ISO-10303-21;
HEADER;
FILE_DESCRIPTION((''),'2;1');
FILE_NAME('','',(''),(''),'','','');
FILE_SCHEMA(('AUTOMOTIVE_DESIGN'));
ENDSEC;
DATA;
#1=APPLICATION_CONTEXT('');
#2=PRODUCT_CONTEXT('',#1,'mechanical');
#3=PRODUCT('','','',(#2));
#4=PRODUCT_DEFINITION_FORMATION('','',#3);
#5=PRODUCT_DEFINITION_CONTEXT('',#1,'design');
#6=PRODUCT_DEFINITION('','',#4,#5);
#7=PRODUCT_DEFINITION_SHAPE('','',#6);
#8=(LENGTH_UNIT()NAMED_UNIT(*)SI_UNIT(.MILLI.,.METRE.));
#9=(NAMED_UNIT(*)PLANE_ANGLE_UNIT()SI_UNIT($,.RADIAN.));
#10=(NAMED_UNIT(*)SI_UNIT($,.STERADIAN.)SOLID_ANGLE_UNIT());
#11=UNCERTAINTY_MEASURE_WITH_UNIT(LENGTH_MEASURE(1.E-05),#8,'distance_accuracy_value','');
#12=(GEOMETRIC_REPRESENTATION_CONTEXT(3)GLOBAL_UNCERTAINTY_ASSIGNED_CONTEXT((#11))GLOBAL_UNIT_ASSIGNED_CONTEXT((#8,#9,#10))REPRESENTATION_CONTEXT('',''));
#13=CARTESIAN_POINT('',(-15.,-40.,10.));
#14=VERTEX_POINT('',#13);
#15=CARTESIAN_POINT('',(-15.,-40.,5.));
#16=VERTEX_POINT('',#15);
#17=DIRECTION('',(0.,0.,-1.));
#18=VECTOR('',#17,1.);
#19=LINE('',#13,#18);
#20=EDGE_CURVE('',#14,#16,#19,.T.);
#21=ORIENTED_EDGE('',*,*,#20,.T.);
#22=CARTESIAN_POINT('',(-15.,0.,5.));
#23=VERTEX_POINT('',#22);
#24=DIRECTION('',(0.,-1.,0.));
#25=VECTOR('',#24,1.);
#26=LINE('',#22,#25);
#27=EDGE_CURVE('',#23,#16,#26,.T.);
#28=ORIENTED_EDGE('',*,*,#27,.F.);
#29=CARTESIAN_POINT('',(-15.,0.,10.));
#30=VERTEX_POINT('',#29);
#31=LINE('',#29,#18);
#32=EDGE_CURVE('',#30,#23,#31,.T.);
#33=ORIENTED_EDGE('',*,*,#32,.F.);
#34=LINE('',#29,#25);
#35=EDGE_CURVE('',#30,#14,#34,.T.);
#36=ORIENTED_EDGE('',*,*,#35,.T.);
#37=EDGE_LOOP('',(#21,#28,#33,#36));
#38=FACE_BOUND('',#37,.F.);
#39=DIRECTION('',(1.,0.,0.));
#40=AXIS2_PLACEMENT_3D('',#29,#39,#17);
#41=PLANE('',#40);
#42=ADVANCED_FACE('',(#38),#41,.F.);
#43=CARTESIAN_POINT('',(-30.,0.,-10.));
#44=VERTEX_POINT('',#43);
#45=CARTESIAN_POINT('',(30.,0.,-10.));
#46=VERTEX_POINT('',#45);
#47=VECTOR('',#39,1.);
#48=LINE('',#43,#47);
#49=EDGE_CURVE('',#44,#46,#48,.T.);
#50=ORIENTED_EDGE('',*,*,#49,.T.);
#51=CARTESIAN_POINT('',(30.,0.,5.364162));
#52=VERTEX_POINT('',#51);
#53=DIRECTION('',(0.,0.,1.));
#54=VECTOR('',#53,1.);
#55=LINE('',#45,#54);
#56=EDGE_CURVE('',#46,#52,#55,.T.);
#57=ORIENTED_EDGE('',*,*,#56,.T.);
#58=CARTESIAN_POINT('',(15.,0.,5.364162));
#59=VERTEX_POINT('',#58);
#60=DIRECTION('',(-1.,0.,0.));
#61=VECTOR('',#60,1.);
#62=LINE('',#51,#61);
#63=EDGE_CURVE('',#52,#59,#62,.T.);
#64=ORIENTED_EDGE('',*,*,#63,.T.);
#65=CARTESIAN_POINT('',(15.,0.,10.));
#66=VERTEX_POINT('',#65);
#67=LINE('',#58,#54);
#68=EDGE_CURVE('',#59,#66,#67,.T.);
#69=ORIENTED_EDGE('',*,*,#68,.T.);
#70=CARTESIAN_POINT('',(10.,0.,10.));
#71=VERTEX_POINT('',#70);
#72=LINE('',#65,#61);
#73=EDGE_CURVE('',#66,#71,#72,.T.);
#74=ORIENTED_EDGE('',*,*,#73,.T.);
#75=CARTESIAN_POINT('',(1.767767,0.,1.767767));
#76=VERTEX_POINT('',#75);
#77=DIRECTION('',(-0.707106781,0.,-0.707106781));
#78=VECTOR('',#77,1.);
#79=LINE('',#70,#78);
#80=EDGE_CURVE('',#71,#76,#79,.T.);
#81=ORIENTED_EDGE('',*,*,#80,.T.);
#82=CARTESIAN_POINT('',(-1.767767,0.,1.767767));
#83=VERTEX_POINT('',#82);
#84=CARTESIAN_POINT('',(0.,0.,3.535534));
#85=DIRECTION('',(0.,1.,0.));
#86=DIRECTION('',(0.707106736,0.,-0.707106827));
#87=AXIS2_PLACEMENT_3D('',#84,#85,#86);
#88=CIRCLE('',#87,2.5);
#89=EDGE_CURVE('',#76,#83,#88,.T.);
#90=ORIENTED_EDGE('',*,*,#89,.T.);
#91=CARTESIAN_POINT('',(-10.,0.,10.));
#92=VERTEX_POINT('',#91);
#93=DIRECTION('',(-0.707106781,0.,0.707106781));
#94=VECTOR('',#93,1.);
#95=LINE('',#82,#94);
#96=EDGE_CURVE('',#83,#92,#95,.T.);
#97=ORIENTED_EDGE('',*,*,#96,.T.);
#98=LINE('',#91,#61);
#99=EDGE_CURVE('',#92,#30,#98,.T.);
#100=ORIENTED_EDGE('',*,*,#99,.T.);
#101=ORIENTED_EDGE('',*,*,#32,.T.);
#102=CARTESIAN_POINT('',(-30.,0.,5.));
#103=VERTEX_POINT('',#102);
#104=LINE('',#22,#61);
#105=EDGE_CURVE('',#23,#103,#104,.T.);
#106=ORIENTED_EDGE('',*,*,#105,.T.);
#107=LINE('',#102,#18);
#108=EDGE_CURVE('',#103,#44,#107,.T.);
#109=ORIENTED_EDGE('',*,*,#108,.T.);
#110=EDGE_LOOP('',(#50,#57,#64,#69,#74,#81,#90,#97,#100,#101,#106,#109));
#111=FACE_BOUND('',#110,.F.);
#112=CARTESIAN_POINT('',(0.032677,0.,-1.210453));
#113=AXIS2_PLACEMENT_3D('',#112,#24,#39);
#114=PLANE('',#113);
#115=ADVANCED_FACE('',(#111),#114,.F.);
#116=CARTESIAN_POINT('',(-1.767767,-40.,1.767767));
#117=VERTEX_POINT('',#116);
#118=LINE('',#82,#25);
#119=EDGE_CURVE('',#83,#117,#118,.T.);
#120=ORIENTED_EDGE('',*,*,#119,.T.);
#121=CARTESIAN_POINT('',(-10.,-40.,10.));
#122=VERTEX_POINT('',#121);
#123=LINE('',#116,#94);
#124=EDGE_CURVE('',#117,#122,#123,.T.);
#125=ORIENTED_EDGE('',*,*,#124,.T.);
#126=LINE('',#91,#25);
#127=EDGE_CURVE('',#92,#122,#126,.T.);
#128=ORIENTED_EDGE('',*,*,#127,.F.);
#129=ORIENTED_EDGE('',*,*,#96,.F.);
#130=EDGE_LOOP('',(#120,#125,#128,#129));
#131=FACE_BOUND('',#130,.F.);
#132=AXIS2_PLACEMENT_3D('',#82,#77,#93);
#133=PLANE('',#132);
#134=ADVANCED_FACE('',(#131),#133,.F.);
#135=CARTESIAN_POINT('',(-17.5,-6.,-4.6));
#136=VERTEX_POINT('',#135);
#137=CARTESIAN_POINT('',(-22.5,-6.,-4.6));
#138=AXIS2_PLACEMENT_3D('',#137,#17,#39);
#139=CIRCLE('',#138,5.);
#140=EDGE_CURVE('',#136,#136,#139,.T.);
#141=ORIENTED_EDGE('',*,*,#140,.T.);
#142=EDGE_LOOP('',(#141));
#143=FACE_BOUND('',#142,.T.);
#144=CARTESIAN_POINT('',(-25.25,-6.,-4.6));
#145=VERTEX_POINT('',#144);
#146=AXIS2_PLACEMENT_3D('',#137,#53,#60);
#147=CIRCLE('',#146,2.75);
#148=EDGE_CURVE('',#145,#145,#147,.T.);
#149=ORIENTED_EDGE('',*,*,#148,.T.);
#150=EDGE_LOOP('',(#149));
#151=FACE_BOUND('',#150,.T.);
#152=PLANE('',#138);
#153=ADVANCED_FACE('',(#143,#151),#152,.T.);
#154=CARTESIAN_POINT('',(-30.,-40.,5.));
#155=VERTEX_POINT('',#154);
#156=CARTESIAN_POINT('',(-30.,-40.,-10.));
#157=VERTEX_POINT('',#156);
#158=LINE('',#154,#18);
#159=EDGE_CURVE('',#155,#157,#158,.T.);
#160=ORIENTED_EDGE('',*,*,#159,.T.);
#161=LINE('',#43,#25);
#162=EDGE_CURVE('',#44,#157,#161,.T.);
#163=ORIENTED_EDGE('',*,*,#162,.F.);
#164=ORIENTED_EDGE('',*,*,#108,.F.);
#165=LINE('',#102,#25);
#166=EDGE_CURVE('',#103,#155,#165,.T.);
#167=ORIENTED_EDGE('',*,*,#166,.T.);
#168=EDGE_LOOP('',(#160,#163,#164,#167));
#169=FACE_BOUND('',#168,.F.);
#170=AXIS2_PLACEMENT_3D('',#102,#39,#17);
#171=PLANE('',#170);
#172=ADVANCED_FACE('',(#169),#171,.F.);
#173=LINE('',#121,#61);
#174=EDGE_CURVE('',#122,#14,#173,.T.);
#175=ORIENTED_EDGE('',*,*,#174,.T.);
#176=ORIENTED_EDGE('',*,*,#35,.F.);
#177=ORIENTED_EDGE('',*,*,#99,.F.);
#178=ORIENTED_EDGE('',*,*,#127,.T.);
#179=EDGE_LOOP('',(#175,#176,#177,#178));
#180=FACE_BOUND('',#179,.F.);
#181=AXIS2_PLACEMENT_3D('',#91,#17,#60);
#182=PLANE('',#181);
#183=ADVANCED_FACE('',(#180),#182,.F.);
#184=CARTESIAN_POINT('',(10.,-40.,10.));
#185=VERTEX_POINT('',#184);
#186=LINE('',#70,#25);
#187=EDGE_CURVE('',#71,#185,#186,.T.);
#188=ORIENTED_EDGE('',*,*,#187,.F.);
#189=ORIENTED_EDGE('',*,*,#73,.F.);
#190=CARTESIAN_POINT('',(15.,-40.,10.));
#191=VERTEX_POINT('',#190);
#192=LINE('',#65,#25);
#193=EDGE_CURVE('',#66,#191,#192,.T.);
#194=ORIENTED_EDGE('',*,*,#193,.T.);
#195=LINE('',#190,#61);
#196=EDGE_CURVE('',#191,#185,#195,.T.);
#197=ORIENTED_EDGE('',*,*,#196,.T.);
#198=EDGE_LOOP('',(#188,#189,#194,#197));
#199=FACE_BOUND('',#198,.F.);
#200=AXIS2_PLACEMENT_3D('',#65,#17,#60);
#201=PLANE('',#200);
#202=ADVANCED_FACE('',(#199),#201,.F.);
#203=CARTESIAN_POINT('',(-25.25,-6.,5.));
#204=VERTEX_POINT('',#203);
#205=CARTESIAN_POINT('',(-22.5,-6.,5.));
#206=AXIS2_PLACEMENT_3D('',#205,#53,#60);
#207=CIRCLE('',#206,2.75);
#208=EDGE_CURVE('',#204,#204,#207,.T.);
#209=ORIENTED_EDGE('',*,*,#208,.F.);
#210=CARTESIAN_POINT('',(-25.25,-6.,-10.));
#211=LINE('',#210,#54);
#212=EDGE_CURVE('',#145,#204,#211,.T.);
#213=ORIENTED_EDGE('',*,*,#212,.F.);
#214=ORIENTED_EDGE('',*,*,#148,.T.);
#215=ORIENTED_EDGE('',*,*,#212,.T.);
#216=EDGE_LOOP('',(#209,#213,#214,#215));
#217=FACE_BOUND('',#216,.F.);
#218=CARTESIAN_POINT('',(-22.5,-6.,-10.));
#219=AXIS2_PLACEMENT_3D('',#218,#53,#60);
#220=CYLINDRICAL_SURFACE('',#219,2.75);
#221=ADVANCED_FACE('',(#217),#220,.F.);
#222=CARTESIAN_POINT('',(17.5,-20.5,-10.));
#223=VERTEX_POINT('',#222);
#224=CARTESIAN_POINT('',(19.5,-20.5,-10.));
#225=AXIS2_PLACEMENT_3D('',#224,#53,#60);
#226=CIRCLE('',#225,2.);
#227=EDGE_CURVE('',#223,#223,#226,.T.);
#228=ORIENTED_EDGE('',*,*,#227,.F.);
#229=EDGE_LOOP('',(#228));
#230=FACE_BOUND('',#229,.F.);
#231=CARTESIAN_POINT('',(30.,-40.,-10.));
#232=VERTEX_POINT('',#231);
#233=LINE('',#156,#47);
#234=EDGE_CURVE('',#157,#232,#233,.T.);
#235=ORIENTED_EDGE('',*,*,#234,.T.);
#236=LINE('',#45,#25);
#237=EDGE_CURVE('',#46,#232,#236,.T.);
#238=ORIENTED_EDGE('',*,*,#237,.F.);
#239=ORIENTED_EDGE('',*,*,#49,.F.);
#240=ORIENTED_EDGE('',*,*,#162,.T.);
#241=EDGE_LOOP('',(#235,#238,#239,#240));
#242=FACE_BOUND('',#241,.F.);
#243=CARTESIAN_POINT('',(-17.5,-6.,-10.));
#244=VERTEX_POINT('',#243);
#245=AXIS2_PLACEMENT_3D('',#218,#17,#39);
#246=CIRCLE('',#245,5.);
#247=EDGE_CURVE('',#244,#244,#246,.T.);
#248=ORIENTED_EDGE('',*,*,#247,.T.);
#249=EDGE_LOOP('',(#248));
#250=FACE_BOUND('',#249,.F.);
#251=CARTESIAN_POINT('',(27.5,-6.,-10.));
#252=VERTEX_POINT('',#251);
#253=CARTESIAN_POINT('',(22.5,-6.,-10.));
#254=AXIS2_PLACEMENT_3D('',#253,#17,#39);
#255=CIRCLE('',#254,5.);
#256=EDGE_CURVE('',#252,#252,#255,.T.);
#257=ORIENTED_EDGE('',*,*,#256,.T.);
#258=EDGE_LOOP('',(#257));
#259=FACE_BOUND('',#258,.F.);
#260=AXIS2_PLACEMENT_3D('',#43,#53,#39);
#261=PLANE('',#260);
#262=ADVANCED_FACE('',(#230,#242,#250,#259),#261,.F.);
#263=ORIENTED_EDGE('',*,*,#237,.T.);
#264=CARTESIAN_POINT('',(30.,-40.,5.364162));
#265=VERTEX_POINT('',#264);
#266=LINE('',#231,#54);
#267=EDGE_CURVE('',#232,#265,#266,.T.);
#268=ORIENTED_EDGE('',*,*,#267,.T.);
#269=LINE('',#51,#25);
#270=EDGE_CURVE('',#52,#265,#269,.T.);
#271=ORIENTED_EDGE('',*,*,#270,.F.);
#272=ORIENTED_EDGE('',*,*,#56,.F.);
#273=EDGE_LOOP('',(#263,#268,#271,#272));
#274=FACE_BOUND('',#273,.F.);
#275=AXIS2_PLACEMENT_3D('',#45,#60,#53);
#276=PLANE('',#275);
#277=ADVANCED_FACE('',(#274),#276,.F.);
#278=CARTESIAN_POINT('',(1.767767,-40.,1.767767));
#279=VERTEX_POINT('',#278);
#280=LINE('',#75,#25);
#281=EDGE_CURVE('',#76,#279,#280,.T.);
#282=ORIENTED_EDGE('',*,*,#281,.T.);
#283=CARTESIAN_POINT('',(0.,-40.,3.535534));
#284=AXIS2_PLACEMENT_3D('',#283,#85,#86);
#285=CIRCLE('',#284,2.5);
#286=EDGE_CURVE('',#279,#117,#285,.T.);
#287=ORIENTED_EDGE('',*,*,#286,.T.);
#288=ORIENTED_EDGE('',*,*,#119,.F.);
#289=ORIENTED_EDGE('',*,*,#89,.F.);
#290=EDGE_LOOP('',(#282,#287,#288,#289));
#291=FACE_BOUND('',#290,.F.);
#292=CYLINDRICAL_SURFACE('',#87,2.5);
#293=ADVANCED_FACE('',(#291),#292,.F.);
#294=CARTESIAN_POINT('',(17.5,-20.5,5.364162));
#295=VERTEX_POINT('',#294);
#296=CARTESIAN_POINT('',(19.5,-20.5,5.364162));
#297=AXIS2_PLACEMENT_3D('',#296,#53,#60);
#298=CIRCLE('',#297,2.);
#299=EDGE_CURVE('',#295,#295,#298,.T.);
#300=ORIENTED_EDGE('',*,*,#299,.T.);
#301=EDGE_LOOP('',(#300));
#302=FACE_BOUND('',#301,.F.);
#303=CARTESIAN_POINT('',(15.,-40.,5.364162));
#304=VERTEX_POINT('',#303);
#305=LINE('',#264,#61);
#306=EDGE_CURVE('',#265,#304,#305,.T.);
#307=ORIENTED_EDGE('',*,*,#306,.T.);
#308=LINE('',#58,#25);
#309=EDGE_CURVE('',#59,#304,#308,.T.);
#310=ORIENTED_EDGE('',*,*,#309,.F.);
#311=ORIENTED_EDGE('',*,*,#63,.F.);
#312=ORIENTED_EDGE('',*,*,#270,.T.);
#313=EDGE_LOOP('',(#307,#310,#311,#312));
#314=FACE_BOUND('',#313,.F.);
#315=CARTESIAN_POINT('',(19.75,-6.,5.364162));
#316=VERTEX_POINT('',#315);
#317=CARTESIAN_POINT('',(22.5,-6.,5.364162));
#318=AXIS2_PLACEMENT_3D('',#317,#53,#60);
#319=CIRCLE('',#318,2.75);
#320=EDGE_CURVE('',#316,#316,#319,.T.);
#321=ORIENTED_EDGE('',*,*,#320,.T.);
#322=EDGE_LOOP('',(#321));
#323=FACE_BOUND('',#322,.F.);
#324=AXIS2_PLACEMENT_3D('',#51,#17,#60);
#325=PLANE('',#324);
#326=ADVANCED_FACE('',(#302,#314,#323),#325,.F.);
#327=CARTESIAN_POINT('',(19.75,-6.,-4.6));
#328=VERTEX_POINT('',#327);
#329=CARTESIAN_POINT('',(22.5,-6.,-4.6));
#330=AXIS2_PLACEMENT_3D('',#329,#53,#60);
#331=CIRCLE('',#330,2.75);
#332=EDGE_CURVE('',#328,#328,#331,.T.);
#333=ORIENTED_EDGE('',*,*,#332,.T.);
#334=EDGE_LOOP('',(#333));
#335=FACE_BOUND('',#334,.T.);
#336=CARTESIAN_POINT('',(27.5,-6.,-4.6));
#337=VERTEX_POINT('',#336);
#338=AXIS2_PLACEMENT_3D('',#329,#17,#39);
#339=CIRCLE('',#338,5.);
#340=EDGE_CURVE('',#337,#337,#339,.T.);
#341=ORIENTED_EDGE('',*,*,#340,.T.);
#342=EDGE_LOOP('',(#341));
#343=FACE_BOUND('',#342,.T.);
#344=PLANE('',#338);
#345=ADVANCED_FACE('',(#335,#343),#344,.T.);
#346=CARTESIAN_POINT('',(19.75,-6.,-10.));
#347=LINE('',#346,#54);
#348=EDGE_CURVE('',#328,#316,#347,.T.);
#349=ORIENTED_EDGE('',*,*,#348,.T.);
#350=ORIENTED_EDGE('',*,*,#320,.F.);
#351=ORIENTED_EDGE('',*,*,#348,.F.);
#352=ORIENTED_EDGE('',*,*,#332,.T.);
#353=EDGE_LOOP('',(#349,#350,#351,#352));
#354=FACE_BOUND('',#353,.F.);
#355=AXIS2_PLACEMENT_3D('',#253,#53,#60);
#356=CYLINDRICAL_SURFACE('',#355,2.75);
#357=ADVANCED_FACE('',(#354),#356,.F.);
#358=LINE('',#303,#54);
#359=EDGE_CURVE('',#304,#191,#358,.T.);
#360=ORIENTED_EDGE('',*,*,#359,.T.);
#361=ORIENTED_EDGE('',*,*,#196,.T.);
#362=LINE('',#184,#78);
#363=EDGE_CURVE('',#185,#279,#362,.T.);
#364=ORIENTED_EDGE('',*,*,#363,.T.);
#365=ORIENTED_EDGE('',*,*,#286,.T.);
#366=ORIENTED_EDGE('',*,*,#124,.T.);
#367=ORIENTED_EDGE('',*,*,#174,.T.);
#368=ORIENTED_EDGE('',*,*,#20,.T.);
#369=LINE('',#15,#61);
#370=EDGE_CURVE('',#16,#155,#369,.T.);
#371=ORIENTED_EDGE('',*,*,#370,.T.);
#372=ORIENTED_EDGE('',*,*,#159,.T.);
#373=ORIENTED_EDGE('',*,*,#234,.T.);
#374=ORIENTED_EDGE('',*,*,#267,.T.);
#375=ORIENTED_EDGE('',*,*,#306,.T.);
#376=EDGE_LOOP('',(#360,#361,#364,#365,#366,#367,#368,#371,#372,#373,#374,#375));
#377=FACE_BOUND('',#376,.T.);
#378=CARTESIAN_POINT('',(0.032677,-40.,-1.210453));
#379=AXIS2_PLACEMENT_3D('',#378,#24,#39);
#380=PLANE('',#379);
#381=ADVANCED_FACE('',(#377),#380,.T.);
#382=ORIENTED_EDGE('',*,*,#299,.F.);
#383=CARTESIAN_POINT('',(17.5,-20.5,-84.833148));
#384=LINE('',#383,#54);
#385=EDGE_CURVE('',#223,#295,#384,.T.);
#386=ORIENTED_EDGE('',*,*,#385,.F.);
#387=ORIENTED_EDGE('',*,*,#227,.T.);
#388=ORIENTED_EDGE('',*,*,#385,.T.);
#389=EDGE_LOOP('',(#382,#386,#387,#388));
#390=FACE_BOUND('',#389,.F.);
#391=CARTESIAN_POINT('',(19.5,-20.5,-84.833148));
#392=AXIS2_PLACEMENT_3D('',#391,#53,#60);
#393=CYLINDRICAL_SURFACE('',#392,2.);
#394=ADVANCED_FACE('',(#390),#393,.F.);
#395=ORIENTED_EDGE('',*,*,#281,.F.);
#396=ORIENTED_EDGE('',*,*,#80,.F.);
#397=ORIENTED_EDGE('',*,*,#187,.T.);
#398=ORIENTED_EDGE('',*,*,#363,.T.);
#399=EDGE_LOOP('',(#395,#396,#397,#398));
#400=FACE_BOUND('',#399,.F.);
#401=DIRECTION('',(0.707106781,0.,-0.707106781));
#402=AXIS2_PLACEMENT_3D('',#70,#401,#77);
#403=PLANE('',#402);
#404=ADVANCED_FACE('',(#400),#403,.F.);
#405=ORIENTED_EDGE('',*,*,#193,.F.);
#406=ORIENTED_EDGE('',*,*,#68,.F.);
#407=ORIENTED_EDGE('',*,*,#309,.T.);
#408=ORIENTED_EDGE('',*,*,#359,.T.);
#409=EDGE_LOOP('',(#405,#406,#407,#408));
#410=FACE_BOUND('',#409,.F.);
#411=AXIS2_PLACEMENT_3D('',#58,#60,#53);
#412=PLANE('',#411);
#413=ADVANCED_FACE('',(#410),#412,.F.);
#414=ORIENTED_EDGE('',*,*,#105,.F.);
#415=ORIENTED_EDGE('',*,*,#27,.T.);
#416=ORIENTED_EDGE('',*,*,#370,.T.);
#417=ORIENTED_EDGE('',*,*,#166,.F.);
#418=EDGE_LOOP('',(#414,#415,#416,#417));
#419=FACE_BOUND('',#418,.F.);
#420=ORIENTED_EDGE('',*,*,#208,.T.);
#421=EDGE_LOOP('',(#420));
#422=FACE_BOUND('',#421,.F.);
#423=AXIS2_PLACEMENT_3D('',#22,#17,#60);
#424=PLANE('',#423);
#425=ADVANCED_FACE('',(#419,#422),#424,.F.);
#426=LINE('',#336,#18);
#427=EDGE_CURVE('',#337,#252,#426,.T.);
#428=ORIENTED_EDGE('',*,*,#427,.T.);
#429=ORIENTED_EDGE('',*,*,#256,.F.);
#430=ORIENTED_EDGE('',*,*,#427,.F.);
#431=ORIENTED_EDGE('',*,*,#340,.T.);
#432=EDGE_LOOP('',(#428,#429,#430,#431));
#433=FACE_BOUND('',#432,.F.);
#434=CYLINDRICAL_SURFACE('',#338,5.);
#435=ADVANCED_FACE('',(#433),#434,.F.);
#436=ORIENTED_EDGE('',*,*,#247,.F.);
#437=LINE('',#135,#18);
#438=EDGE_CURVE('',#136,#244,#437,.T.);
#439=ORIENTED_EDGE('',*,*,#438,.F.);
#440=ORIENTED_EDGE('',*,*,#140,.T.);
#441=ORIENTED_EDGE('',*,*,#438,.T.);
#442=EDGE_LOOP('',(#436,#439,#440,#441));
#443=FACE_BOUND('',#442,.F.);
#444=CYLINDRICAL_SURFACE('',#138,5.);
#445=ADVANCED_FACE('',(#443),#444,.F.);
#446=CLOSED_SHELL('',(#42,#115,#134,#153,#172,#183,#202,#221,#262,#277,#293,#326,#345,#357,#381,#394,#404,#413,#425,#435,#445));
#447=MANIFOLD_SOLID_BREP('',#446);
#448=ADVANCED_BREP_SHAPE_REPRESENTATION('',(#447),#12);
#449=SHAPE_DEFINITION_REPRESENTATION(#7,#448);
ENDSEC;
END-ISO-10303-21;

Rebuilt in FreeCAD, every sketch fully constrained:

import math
import FreeCAD as App
import Part
import Sketcher
from FreeCAD import Vector
Q = App.Units.Quantity

doc = App.newDocument("Part")
body = doc.addObject("PartDesign::Body", "Body")

# Sketch on XZ plane
sketch1 = body.newObject("Sketcher::SketchObject", "Sketch")
sketch1.AttachmentSupport = (doc.getObject("XZ_Plane"), [""])
sketch1.MapMode = "FlatFace"
sketch1.addGeometry([
    Part.LineSegment(Vector(-15, 5, 0), Vector(-30, 5, 0)),  # 0
    Part.LineSegment(Vector(-30, 5, 0), Vector(-30, -10, 0)),  # 1
    Part.LineSegment(Vector(-30, -10, 0), Vector(30, -10, 0)),  # 2
    Part.LineSegment(Vector(30, -10, 0), Vector(30, 5.4, 0)),  # 3
    Part.LineSegment(Vector(30, 5.4, 0), Vector(15, 5.4, 0)),  # 4
    Part.LineSegment(Vector(15, 5.4, 0), Vector(15, 10, 0)),  # 5
    Part.LineSegment(Vector(15, 10, 0), Vector(10, 10, 0)),  # 6
    Part.LineSegment(Vector(10, 10, 0), Vector(1.8, 1.8, 0)),  # 7
    Part.ArcOfCircle(Part.Circle(Vector(0, 3.5, 0), Vector(0, 0, 1), 2.5), math.radians(-135), math.radians(-45)),  # 8
    Part.LineSegment(Vector(-1.8, 1.8, 0), Vector(-10, 10, 0)),  # 9
    Part.LineSegment(Vector(-10, 10, 0), Vector(-15, 10, 0)),  # 10
    Part.LineSegment(Vector(-15, 10, 0), Vector(-15, 5, 0)),  # 11
], False)
sketch1.addConstraint([
    Sketcher.Constraint("Coincident", 0, 2, 1, 1),
    Sketcher.Constraint("Coincident", 1, 2, 2, 1),
    Sketcher.Constraint("Coincident", 2, 2, 3, 1),
    Sketcher.Constraint("Coincident", 3, 2, 4, 1),
    Sketcher.Constraint("Coincident", 4, 2, 5, 1),
    Sketcher.Constraint("Coincident", 5, 2, 6, 1),
    Sketcher.Constraint("Coincident", 6, 2, 7, 1),
    Sketcher.Constraint("Tangent", 7, 2, 8, 2),
    Sketcher.Constraint("Tangent", 8, 1, 9, 1),
    Sketcher.Constraint("Coincident", 9, 2, 10, 1),
    Sketcher.Constraint("Coincident", 10, 2, 11, 1),
    Sketcher.Constraint("Coincident", 11, 2, 0, 1),
    Sketcher.Constraint("Horizontal", 0),
    Sketcher.Constraint("Vertical", 1),
    Sketcher.Constraint("Horizontal", 2),
    Sketcher.Constraint("Vertical", 3),
    Sketcher.Constraint("Horizontal", 4),
    Sketcher.Constraint("Vertical", 5),
    Sketcher.Constraint("Horizontal", 6),
    Sketcher.Constraint("Horizontal", 10),
    Sketcher.Constraint("Vertical", 11),
    Sketcher.Constraint("Symmetric", 7, 2, 8, 1, -2),
    Sketcher.Constraint("Symmetric", 5, 2, 10, 2, -2),
    Sketcher.Constraint("Perpendicular", 7, 9),
    Sketcher.Constraint("Equal", 0, 4),
    Sketcher.Constraint("Equal", 4, 1),
    Sketcher.Constraint("Equal", 10, 11),
    Sketcher.Constraint("Radius", 8, Q("2.5 mm")),
    Sketcher.Constraint("DistanceX", 0, 2, 0, 1, Q("15 mm")),
    Sketcher.Constraint("DistanceX", 2, 1, 2, 2, Q("60 mm")),
    Sketcher.Constraint("DistanceX", 6, 2, 6, 1, Q("5 mm")),
    Sketcher.Constraint("DistanceY", -1, 1, 0, 2, Q("5 mm")),
    Sketcher.Constraint("DistanceY", 3, 1, 3, 2, Q("15.364162 mm")),
])
pad1 = body.newObject("PartDesign::Pad", "Pad")
pad1.Profile = sketch1
pad1.Length = 40

# Sketch on XY plane
sketch2 = body.newObject("Sketcher::SketchObject", "Sketch001")
sketch2.AttachmentSupport = (doc.getObject("XY_Plane"), [""])
sketch2.MapMode = "FlatFace"
sketch2.AttachmentOffset = App.Placement(Vector(0, 0, -10), App.Rotation())
sketch2.addGeometry([
    Part.Circle(Vector(-22.5, -6, 0), Vector(0, 0, 1), 2.8),
    Part.Circle(Vector(22.5, -6, 0), Vector(0, 0, 1), 2.8),
], False)
sketch2.addConstraint([
    Sketcher.Constraint("Equal", 0, 1),
    Sketcher.Constraint("Symmetric", 0, 3, 1, 3, -2),
    Sketcher.Constraint("Diameter", 0, Q("5.5 mm")),
    Sketcher.Constraint("DistanceY", 0, 3, -1, 1, Q("6 mm")),
    Sketcher.Constraint("DistanceX", 0, 3, 1, 3, Q("45 mm")),
])
doc.recompute()
hole = body.newObject("PartDesign::Hole", "Hole")
hole.Profile = sketch2
hole.ThreadType = "None"
hole.Diameter = 5.5
hole.DepthType = "ThroughAll"
hole.HoleCutType = "Counterbore"
hole.HoleCutDiameter = 10
hole.HoleCutDepth = 5.4
hole.Reversed = True

# Sketch on XY plane
sketch3 = body.newObject("Sketcher::SketchObject", "Sketch002")
sketch3.AttachmentSupport = (doc.getObject("XY_Plane"), [""])
sketch3.MapMode = "FlatFace"
sketch3.AttachmentOffset = App.Placement(Vector(0, 0, -10), App.Rotation())
sketch3.addGeometry(Part.Circle(Vector(19.5, -20.5, 0), Vector(0, 0, 1), 2), False)
sketch3.addConstraint([
    Sketcher.Constraint("Diameter", 0, Q("4 mm")),
    Sketcher.Constraint("DistanceX", -1, 1, 0, 3, Q("19.5 mm")),
    Sketcher.Constraint("DistanceY", 0, 3, -1, 1, Q("20.5 mm")),
])
doc.recompute()
hole2 = body.newObject("PartDesign::Hole", "Hole001")
hole2.Profile = sketch3
hole2.ThreadType = "None"
hole2.Diameter = 4
hole2.DepthType = "ThroughAll"
hole2.Reversed = True

doc.recompute()
